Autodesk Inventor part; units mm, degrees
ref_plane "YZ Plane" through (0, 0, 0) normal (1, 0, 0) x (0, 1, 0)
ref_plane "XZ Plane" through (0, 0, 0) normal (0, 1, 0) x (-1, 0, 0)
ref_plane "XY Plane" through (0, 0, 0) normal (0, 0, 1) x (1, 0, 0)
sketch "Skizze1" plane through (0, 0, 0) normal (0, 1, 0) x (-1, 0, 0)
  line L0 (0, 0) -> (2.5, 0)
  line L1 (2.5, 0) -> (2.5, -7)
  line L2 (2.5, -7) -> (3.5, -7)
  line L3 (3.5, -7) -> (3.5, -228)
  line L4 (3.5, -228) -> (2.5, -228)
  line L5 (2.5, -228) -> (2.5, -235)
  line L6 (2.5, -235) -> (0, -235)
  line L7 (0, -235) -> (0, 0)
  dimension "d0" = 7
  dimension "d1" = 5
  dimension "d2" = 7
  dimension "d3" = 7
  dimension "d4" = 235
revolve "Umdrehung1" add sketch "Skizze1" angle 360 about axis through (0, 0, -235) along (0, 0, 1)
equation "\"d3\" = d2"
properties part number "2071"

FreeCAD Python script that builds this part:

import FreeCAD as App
import Part
import Sketcher

V = App.Vector
Q = App.Units.Quantity


def add_polygon(sketch, points):
    """Adds a closed chain of lines whose ends are joined by coincident constraints."""
    first, n = sketch.GeometryCount, len(points)
    for a, b in zip(points, points[1:] + points[:1]):
        sketch.addGeometry(Part.LineSegment(App.Vector(*a, 0), App.Vector(*b, 0)), False)
    for i in range(n):
        sketch.addConstraint(Sketcher.Constraint("Coincident", first + i, 2, first + (i + 1) % n, 1))

doc = App.newDocument("Part")
body = doc.addObject("PartDesign::Body", "Body")

# Sketch on XZ plane
sketch1 = body.newObject("Sketcher::SketchObject", "Sketch")
sketch1.AttachmentSupport = (doc.getObject("XZ_Plane"), [""])
sketch1.MapMode = "FlatFace"
add_polygon(sketch1, [(-2.5, 0), (0, 0), (0, -235), (-2.5, -235), (-2.5, -228), (-3.5, -228), (-3.5, -7), (-2.5, -7)])  # lines 0-7
sketch1.addConstraint(Sketcher.Constraint("Horizontal", 0))
sketch1.addConstraint(Sketcher.Constraint("Vertical", 1))
sketch1.addConstraint(Sketcher.Constraint("Horizontal", 2))
sketch1.addConstraint(Sketcher.Constraint("Vertical", 3))
sketch1.addConstraint(Sketcher.Constraint("Horizontal", 4))
sketch1.addConstraint(Sketcher.Constraint("Vertical", 5))
sketch1.addConstraint(Sketcher.Constraint("Horizontal", 6))
sketch1.addConstraint(Sketcher.Constraint("Vertical", 7))
sketch1.addConstraint(Sketcher.Constraint("Coincident", 0, 2, -1, 1))
sketch1.addConstraint(Sketcher.Constraint("Vertical", 3, 2, 6, 2))
sketch1.addConstraint(Sketcher.Constraint("Equal", 3, 7))
sketch1.addConstraint(Sketcher.Constraint("DistanceY", 1, 2, 1, 1, Q("235 mm")))
sketch1.addConstraint(Sketcher.Constraint("DistanceY", 3, 1, 3, 2, Q("7 mm")))
sketch1.addConstraint(Sketcher.Constraint("DistanceX", 4, 2, 4, 1, Q("1 mm")))
sketch1.addConstraint(Sketcher.Constraint("DistanceX", 0, 1, 0, 2, Q("2.5 mm")))
revolution = body.newObject("PartDesign::Revolution", "Revolution")
revolution.Profile = sketch1
revolution.ReferenceAxis = (sketch1, ["V_Axis"])
revolution.Angle = 360

doc.recompute()
